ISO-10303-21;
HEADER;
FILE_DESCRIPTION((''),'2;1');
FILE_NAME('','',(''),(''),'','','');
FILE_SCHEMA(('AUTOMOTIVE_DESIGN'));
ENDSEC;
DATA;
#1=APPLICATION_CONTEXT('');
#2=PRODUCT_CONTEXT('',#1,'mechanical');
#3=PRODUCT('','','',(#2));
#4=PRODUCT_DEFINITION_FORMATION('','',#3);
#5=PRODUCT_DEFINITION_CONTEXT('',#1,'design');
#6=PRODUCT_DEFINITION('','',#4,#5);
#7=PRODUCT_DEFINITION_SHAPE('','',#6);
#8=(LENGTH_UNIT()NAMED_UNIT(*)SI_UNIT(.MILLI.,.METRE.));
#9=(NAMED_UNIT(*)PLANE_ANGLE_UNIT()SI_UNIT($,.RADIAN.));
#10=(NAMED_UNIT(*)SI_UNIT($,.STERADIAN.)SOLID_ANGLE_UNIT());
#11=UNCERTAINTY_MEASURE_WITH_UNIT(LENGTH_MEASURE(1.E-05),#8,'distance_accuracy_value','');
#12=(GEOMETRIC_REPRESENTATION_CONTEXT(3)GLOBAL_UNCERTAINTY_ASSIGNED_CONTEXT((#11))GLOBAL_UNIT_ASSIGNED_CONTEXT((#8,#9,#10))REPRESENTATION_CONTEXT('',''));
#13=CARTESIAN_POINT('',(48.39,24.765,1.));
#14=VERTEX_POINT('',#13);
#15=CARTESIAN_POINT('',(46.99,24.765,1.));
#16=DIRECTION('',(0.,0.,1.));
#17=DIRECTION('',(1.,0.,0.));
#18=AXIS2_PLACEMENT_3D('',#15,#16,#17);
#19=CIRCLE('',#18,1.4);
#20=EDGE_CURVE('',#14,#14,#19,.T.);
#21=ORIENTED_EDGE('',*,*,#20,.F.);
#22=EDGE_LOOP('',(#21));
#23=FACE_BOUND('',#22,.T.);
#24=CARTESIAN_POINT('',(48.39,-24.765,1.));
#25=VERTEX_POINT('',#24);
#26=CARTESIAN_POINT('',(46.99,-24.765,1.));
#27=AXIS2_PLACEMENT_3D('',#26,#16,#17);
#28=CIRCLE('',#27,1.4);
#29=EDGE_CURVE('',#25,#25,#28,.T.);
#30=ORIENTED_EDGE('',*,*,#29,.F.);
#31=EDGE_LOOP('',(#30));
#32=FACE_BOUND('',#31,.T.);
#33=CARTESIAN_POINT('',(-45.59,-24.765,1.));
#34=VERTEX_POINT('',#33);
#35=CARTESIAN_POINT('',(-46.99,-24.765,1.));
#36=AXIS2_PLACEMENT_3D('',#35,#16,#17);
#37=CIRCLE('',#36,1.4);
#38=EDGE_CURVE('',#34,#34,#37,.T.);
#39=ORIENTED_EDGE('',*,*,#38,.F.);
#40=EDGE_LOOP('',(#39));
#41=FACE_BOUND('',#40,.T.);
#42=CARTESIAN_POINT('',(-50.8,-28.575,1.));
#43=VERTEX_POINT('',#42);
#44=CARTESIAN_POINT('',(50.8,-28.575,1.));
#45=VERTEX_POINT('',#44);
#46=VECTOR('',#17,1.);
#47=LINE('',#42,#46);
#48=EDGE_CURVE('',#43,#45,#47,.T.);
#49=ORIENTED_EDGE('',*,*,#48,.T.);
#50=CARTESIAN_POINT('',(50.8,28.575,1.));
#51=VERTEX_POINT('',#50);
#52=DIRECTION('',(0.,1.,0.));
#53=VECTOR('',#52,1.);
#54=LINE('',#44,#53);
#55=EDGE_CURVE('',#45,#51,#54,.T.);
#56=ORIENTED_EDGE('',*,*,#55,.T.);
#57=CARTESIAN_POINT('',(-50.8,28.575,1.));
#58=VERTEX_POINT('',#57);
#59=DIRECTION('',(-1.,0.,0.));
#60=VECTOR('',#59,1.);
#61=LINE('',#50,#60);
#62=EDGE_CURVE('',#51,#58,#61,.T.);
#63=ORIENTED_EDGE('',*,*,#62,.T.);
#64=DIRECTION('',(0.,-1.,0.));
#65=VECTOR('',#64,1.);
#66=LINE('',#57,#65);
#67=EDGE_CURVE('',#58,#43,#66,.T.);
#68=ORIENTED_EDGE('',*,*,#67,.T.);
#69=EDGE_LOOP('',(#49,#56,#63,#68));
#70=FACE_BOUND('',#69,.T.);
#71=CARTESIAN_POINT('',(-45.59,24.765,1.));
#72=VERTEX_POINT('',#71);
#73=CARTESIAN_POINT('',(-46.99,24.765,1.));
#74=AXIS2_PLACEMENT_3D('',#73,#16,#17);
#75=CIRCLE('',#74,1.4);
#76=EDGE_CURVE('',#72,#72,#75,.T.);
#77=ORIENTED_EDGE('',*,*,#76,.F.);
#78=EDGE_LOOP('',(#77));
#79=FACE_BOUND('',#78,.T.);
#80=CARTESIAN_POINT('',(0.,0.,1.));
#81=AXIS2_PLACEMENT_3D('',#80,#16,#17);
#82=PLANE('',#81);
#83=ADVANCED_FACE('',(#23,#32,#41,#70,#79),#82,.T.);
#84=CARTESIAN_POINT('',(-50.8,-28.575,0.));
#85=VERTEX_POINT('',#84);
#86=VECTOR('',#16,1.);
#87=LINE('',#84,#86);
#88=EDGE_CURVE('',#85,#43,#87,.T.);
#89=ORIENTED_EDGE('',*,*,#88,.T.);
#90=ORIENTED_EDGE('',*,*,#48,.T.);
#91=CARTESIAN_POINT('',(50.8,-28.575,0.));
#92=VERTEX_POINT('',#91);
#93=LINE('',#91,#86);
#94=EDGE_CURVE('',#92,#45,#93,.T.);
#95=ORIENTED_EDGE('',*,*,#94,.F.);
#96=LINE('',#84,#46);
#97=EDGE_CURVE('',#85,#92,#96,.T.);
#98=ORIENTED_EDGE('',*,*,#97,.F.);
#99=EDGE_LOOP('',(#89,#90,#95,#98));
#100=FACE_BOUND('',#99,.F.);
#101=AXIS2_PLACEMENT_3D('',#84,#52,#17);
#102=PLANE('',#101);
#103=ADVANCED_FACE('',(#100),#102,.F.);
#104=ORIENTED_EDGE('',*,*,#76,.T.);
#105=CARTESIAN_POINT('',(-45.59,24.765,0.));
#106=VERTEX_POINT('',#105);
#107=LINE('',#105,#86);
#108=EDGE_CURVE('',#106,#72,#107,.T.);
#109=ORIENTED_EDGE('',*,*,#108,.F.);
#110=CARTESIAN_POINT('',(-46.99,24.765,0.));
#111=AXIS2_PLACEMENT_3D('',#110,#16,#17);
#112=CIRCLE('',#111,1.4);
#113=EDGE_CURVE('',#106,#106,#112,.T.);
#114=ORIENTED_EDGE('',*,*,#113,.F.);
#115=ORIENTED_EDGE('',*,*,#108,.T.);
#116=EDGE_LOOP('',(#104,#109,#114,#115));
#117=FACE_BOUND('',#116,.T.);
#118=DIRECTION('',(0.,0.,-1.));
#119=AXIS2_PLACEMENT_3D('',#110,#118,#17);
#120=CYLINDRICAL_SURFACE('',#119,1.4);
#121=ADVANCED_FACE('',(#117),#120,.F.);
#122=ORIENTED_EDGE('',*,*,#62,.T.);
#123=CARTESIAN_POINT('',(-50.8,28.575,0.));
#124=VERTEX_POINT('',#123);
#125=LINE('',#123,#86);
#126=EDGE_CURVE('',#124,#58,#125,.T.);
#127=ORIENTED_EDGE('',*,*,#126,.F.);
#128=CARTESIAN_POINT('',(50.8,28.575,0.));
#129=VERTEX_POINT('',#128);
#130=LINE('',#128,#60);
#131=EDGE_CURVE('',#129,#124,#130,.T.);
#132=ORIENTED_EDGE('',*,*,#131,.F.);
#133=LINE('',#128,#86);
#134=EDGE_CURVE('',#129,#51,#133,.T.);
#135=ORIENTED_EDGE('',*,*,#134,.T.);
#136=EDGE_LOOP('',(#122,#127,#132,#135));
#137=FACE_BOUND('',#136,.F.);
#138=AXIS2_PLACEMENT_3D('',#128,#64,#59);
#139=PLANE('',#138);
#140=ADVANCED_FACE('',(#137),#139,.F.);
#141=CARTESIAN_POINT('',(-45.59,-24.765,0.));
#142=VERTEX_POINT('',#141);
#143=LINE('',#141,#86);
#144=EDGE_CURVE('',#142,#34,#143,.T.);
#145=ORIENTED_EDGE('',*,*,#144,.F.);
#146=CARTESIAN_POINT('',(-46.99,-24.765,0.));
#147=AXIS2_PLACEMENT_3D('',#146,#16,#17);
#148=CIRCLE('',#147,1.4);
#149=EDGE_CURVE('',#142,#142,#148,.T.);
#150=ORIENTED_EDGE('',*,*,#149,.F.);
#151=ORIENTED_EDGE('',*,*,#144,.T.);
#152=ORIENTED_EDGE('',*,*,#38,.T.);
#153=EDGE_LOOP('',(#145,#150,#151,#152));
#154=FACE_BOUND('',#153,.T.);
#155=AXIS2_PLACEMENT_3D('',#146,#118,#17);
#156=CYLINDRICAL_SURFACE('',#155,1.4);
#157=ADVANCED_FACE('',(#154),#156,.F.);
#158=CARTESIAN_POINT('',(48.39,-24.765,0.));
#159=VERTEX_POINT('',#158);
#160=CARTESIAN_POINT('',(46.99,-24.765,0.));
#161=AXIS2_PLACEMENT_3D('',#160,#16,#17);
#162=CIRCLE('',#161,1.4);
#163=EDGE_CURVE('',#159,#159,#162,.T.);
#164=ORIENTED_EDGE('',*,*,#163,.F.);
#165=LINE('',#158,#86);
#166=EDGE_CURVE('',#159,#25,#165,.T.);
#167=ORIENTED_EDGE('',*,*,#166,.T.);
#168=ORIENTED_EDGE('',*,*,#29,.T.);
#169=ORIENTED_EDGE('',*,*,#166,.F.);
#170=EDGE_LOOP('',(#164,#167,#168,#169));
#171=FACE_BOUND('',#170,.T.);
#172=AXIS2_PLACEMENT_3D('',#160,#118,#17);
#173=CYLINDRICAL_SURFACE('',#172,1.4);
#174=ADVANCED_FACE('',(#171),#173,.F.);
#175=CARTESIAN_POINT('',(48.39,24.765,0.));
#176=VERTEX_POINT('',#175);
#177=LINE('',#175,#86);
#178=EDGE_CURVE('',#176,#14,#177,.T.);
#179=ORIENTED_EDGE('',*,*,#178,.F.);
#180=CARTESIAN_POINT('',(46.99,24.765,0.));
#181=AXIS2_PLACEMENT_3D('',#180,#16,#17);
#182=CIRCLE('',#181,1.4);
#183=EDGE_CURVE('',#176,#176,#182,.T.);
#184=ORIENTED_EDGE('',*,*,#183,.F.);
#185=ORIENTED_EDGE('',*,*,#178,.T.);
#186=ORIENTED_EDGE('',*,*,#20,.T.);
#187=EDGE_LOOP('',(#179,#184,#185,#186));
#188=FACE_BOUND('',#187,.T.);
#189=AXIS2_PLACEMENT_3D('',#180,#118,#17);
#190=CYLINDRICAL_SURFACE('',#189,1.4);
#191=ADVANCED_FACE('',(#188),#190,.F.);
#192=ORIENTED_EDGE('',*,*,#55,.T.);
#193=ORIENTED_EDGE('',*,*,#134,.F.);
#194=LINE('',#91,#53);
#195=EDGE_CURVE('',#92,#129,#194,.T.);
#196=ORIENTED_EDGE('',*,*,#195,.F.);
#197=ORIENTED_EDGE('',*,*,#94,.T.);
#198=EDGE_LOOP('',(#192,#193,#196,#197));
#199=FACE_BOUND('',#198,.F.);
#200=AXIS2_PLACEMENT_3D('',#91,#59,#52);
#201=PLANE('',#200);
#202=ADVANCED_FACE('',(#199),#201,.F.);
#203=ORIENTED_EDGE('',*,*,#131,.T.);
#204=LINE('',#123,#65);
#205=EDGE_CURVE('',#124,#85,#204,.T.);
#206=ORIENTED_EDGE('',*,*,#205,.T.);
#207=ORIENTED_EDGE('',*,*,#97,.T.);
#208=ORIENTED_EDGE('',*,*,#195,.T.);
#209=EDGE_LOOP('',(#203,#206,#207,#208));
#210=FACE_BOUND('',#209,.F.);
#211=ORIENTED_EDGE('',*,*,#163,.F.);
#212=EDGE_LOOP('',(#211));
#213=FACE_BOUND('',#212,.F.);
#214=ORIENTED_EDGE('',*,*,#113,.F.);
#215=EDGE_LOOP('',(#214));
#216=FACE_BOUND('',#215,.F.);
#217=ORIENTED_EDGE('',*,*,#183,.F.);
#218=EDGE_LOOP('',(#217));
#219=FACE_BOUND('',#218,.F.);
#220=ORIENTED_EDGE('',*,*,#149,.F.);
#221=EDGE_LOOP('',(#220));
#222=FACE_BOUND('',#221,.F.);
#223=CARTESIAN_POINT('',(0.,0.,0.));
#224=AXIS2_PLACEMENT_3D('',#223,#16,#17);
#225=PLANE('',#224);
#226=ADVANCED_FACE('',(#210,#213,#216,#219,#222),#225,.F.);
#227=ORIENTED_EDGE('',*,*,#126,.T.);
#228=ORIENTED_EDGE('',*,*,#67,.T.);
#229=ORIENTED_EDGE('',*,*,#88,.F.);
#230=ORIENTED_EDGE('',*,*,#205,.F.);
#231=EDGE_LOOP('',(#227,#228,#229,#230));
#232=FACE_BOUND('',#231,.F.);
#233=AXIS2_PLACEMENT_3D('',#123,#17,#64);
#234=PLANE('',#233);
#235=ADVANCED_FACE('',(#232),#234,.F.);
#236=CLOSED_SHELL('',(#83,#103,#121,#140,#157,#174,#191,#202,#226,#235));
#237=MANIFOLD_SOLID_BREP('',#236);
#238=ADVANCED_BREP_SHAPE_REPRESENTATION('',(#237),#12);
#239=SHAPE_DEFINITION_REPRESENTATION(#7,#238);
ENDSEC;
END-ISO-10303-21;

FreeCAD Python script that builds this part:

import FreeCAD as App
import Part
import Sketcher
from FreeCAD import Vector


def add_polygon(sketch, points):
    """Adds a closed chain of lines whose ends are joined by coincident constraints."""
    first, n = sketch.GeometryCount, len(points)
    for a, b in zip(points, points[1:] + points[:1]):
        sketch.addGeometry(Part.LineSegment(App.Vector(*a, 0), App.Vector(*b, 0)), False)
    for i in range(n):
        sketch.addConstraint(Sketcher.Constraint("Coincident", first + i, 2, first + (i + 1) % n, 1))

doc = App.newDocument("Part")
body = doc.addObject("PartDesign::Body", "Body")

sketch1 = body.newObject("Sketcher::SketchObject", "Sketch")
sketch1.AttachmentSupport = (doc.getObject("XY_Plane"), [""])
sketch1.MapMode = "FlatFace"
add_polygon(sketch1, [(-50.8, 28.575), (-50.8, -28.575), (50.8, -28.575), (50.8, 28.575)])
sketch1.addGeometry(Part.Circle(Vector(-46.99, -24.765, 0), Vector(0, 0, 1), 1.4), False)
sketch1.addGeometry(Part.Circle(Vector(46.99, -24.765, 0), Vector(0, 0, 1), 1.4), False)
sketch1.addGeometry(Part.Circle(Vector(-46.99, 24.765, 0), Vector(0, 0, 1), 1.4), False)
sketch1.addGeometry(Part.Circle(Vector(46.99, 24.765, 0), Vector(0, 0, 1), 1.4), False)
sketch1.addConstraint([
    Sketcher.Constraint("Vertical", 0),
    Sketcher.Constraint("Horizontal", 1),
    Sketcher.Constraint("Vertical", 2),
    Sketcher.Constraint("Horizontal", 3),
    Sketcher.Constraint("Equal", 4, 5),
    Sketcher.Constraint("Equal", 5, 6),
    Sketcher.Constraint("Equal", 6, 7),
    Sketcher.Constraint("Symmetric", 5, 3, 6, 3, -1, 1),
    Sketcher.Constraint("Symmetric", 4, 3, 7, 3, -1, 1),
    Sketcher.Constraint("Symmetric", 0, 2, 2, 2, -1, 1),
    Sketcher.Constraint("Symmetric", 4, 3, 5, 3, -2),
    Sketcher.Constraint("Diameter", 4, 2.8),
    Sketcher.Constraint("DistanceX", 1, 1, 1, 2, 101.6),
    Sketcher.Constraint("DistanceY", 0, 2, 0, 1, 57.15),
    Sketcher.Constraint("DistanceX", 4, 3, 5, 3, 93.98),
    Sketcher.Constraint("DistanceY", 4, 3, 6, 3, 49.53),
])
pad1 = body.newObject("PartDesign::Pad", "Pad")
pad1.Profile = sketch1
pad1.Length = 1

doc.recompute()
